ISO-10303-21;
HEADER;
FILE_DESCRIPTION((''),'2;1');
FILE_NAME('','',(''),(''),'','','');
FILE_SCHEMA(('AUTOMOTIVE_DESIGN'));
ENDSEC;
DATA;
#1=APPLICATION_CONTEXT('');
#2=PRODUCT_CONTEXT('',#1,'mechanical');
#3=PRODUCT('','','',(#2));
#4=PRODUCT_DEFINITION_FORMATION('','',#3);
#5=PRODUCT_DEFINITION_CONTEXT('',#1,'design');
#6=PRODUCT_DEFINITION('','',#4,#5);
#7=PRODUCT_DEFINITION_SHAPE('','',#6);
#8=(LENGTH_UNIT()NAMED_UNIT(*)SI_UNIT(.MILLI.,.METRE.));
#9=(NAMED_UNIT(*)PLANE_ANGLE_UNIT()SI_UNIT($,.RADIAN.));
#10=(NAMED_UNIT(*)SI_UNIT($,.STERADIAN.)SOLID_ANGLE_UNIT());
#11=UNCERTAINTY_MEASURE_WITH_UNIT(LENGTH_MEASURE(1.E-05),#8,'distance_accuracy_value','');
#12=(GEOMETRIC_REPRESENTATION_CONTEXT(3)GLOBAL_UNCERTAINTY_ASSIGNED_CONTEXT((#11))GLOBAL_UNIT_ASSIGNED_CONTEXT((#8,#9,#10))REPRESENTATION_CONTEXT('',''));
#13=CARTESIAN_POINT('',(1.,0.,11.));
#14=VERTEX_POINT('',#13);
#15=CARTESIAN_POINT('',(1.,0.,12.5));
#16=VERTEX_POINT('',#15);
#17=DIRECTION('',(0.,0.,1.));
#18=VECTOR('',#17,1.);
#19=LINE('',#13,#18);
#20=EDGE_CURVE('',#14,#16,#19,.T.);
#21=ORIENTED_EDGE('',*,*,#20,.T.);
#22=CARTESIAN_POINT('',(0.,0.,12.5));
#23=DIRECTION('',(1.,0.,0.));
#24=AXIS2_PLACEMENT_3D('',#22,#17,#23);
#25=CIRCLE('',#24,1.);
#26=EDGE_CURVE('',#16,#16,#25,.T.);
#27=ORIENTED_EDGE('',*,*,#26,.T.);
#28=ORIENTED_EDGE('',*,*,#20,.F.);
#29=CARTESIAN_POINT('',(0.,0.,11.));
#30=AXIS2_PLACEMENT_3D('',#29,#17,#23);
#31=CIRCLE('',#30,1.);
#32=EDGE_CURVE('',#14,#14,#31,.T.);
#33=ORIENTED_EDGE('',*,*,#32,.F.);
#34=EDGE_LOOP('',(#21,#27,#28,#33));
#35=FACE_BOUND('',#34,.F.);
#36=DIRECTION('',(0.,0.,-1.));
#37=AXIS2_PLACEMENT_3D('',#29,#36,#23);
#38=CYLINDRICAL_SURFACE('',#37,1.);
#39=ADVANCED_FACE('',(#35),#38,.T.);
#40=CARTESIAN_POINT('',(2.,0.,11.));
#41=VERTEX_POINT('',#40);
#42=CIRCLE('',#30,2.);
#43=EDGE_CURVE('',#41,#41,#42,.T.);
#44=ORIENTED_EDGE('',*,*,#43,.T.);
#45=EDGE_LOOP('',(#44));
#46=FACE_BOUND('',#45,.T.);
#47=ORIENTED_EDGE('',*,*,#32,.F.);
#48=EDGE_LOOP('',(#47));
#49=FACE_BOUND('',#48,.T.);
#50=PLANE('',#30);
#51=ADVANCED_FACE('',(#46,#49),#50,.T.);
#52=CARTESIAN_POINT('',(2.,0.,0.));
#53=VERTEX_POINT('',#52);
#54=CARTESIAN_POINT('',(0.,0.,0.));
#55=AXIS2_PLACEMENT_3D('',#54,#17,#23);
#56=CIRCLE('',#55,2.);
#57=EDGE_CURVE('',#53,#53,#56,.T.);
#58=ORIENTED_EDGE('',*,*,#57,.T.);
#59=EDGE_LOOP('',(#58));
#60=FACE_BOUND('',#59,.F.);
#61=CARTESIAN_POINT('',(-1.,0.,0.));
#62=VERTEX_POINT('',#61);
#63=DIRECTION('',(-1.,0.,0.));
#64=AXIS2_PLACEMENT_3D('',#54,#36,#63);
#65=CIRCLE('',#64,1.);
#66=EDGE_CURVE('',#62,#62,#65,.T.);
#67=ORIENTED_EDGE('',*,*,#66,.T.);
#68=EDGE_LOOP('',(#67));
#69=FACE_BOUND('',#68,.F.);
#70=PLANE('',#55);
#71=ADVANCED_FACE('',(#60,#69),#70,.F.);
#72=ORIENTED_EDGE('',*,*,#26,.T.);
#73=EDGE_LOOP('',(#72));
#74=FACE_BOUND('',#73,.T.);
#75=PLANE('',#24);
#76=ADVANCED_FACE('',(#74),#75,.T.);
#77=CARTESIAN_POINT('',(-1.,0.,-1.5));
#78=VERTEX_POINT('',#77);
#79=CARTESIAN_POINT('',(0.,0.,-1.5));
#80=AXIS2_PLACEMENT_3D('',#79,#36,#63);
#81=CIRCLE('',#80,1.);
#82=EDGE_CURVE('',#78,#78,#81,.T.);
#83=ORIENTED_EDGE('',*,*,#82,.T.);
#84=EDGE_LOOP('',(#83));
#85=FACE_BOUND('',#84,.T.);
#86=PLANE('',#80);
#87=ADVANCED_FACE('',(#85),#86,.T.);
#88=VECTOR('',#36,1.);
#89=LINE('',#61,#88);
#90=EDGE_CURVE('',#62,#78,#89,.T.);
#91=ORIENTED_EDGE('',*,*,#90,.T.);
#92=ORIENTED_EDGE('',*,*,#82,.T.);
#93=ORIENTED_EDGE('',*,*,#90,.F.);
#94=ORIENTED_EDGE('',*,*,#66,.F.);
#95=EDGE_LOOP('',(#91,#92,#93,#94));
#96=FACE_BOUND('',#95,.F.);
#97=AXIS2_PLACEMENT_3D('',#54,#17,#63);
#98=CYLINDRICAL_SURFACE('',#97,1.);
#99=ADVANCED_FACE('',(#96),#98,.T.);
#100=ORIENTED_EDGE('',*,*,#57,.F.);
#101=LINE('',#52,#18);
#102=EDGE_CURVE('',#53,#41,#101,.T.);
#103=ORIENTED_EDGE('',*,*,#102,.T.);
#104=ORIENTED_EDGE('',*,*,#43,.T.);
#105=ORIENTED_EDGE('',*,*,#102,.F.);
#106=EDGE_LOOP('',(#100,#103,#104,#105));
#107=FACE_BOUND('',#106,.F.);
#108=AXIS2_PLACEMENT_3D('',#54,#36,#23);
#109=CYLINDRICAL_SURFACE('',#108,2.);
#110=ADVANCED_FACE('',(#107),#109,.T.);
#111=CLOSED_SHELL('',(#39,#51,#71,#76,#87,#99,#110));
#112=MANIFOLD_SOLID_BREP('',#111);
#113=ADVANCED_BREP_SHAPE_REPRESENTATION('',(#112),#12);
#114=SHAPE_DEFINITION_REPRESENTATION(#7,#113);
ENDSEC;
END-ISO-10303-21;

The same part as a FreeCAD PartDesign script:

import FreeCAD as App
import Part
import Sketcher

V = App.Vector

doc = App.newDocument("Part")
body = doc.addObject("PartDesign::Body", "Body")

sketch1 = doc.addObject("Sketcher::SketchObject", "Sketch")
body.addObject(sketch1)
sketch1.AttachmentSupport = (doc.XY_Plane, [""])
sketch1.MapMode = "FlatFace"
sketch1.addGeometry(Part.Circle(V(0, 0, 0), V(0, 0, 1), 2), False)
sketch1.addConstraint([
    Sketcher.Constraint("Coincident", 0, 3, -1, 1),
    Sketcher.Constraint("Diameter", 0, 4.0),
])
pad1 = doc.addObject("PartDesign::Pad", "Pad")
body.addObject(pad1)
pad1.Profile = sketch1
pad1.Length = 11

sketch2 = doc.addObject("Sketcher::SketchObject", "Sketch001")
body.addObject(sketch2)
sketch2.AttachmentSupport = (doc.XY_Plane, [""])
sketch2.MapMode = "FlatFace"
sketch2.AttachmentOffset = App.Placement(V(0, 0, 11), App.Rotation())
sketch2.addGeometry(Part.Circle(V(0, 0, 0), V(0, 0, 1), 1), False)
sketch2.addConstraint([
    Sketcher.Constraint("Coincident", 0, 3, -1, 1),
    Sketcher.Constraint("Diameter", 0, 2.0),
])
pad2 = doc.addObject("PartDesign::Pad", "Pad001")
body.addObject(pad2)
pad2.Profile = sketch2
pad2.Length = 1.5

sketch3 = doc.addObject("Sketcher::SketchObject", "Sketch002")
body.addObject(sketch3)
sketch3.AttachmentSupport = (doc.XY_Plane, [""])
sketch3.MapMode = "FlatFace"
sketch3.addGeometry(Part.Circle(V(0, 0, 0), V(0, 0, 1), 1), False)
sketch3.addConstraint([
    Sketcher.Constraint("Coincident", 0, 3, -1, 1),
    Sketcher.Constraint("Diameter", 0, 2.0),
])
pad3 = doc.addObject("PartDesign::Pad", "Pad002")
body.addObject(pad3)
pad3.Profile = sketch3
pad3.Length = 1.5
pad3.Reversed = True

doc.recompute()
